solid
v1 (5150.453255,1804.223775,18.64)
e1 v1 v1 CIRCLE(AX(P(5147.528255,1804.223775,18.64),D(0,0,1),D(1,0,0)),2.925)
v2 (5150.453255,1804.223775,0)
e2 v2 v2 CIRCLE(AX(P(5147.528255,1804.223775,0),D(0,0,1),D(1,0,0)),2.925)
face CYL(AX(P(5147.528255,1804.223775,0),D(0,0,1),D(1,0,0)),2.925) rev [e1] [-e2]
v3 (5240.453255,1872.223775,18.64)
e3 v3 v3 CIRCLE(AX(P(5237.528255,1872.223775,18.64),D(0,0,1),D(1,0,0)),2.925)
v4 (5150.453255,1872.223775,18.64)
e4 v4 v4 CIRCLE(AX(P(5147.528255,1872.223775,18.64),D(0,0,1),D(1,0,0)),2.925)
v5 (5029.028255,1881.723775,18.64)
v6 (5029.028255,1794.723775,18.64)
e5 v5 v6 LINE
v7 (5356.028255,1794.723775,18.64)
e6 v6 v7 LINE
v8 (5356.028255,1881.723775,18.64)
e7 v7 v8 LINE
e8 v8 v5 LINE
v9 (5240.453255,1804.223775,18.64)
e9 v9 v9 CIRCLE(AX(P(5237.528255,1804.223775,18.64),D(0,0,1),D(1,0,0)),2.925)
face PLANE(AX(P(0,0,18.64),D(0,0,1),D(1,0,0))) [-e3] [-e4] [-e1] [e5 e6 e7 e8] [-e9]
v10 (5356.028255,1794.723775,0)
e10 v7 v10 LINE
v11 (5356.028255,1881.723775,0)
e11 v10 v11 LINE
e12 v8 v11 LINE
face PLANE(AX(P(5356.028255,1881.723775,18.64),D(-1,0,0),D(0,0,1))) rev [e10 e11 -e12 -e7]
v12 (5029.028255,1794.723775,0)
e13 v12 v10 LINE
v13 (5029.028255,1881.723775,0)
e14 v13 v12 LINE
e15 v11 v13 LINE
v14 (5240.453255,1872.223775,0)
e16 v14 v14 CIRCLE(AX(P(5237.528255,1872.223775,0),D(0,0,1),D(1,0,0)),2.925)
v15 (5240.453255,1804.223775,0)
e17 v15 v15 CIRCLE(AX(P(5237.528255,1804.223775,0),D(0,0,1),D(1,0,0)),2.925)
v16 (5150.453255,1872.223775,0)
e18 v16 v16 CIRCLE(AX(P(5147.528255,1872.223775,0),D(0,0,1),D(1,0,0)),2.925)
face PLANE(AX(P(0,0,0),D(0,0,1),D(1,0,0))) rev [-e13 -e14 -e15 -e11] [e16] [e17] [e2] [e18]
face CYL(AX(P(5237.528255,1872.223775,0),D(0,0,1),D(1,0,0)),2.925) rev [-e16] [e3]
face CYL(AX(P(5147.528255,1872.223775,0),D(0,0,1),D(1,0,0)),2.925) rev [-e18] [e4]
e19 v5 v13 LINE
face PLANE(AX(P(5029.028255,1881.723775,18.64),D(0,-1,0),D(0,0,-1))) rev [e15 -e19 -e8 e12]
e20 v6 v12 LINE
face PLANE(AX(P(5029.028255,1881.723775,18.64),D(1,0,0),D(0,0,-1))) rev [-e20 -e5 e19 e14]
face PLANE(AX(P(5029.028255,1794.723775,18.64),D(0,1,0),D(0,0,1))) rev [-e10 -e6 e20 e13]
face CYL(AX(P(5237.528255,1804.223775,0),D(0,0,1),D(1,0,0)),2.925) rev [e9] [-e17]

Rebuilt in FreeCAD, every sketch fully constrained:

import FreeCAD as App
import Part
import Sketcher

V = App.Vector
Q = App.Units.Quantity

doc = App.newDocument("Part")
params = doc.addObject("Spreadsheet::Sheet", "Params")
for row, (alias, value) in enumerate([
    ("sketch1_width", "327 mm"),
    ("sketch1_height", "87 mm"),
    ("pad1_length", "18.64 mm"),
    ("sketch2_diameter", "5.85 mm"),
], start=1):
    params.set(f"A{row}", alias)
    params.set(f"B{row}", "=" + value)
    params.setAlias(f"B{row}", alias)

body = doc.addObject("PartDesign::Body", "Body")

# Sketch on XY plane
sketch1 = body.newObject("Sketcher::SketchObject", "Sketch")
sketch1.AttachmentSupport = (doc.getObject("XY_Plane"), [""])
sketch1.MapMode = "FlatFace"
sketch1.addGeometry([
    Part.LineSegment(V(5029, 1882, 0), V(5029, 1795, 0)),
    Part.LineSegment(V(5029, 1795, 0), V(5356, 1795, 0)),
    Part.LineSegment(V(5356, 1795, 0), V(5356, 1882, 0)),
    Part.LineSegment(V(5356, 1882, 0), V(5029, 1882, 0)),
], False)
sketch1.addConstraint([
    Sketcher.Constraint("Coincident", 0, 2, 1, 1),
    Sketcher.Constraint("Coincident", 1, 2, 2, 1),
    Sketcher.Constraint("Coincident", 2, 2, 3, 1),
    Sketcher.Constraint("Coincident", 3, 2, 0, 1),
    Sketcher.Constraint("Vertical", 0),
    Sketcher.Constraint("Horizontal", 1),
    Sketcher.Constraint("Vertical", 2),
    Sketcher.Constraint("Horizontal", 3),
    Sketcher.Constraint("DistanceX", 1, 1, 1, 2, Q("327 mm")),
    Sketcher.Constraint("DistanceY", 0, 2, 0, 1, Q("87 mm")),
    Sketcher.Constraint("DistanceX", -1, 1, 0, 2, Q("5029.028255 mm")),
    Sketcher.Constraint("DistanceY", -1, 1, 0, 2, Q("1794.723775 mm")),
])
sketch1.setExpression("Constraints[8]", "Params.sketch1_width")
sketch1.setExpression("Constraints[9]", "Params.sketch1_height")
pad1 = body.newObject("PartDesign::Pad", "Pad")
pad1.Profile = sketch1
pad1.setExpression("Length", "Params.pad1_length")

# Sketch on XY plane
sketch2 = body.newObject("Sketcher::SketchObject", "Sketch001")
sketch2.AttachmentSupport = (doc.getObject("XY_Plane"), [""])
sketch2.MapMode = "FlatFace"
sketch2.AttachmentOffset = App.Placement(V(0, 0, 18.64), App.Rotation())
sketch2.addGeometry([
    Part.Circle(V(5147.5, 1872.2, 0), V(0, 0, 1), 2.9),
    Part.Circle(V(5147.5, 1804.2, 0), V(0, 0, 1), 2.9),
    Part.Circle(V(5237.5, 1804.2, 0), V(0, 0, 1), 2.9),
    Part.Circle(V(5237.5, 1872.2, 0), V(0, 0, 1), 2.9),
], False)
sketch2.addConstraint([
    Sketcher.Constraint("Equal", 0, 1),
    Sketcher.Constraint("Equal", 1, 2),
    Sketcher.Constraint("Equal", 2, 3),
    Sketcher.Constraint("Horizontal", 1, 3, 2, 3),
    Sketcher.Constraint("Horizontal", 0, 3, 3, 3),
    Sketcher.Constraint("Vertical", 0, 3, 1, 3),
    Sketcher.Constraint("Vertical", 2, 3, 3, 3),
    Sketcher.Constraint("Diameter", 0, Q("5.85 mm")),
    Sketcher.Constraint("DistanceY", 1, 3, 0, 3, Q("68 mm")),
    Sketcher.Constraint("DistanceX", 1, 3, 2, 3, Q("90 mm")),
    Sketcher.Constraint("DistanceX", -1, 1, 0, 3, Q("5147.528255 mm")),
    Sketcher.Constraint("DistanceY", -1, 1, 0, 3, Q("1872.223775 mm")),
])
sketch2.setExpression("Constraints[7]", "Params.sketch2_diameter")
pocket1 = body.newObject("PartDesign::Pocket", "Pocket")
pocket1.Profile = sketch2
pocket1.Type = "ThroughAll"

doc.recompute()
